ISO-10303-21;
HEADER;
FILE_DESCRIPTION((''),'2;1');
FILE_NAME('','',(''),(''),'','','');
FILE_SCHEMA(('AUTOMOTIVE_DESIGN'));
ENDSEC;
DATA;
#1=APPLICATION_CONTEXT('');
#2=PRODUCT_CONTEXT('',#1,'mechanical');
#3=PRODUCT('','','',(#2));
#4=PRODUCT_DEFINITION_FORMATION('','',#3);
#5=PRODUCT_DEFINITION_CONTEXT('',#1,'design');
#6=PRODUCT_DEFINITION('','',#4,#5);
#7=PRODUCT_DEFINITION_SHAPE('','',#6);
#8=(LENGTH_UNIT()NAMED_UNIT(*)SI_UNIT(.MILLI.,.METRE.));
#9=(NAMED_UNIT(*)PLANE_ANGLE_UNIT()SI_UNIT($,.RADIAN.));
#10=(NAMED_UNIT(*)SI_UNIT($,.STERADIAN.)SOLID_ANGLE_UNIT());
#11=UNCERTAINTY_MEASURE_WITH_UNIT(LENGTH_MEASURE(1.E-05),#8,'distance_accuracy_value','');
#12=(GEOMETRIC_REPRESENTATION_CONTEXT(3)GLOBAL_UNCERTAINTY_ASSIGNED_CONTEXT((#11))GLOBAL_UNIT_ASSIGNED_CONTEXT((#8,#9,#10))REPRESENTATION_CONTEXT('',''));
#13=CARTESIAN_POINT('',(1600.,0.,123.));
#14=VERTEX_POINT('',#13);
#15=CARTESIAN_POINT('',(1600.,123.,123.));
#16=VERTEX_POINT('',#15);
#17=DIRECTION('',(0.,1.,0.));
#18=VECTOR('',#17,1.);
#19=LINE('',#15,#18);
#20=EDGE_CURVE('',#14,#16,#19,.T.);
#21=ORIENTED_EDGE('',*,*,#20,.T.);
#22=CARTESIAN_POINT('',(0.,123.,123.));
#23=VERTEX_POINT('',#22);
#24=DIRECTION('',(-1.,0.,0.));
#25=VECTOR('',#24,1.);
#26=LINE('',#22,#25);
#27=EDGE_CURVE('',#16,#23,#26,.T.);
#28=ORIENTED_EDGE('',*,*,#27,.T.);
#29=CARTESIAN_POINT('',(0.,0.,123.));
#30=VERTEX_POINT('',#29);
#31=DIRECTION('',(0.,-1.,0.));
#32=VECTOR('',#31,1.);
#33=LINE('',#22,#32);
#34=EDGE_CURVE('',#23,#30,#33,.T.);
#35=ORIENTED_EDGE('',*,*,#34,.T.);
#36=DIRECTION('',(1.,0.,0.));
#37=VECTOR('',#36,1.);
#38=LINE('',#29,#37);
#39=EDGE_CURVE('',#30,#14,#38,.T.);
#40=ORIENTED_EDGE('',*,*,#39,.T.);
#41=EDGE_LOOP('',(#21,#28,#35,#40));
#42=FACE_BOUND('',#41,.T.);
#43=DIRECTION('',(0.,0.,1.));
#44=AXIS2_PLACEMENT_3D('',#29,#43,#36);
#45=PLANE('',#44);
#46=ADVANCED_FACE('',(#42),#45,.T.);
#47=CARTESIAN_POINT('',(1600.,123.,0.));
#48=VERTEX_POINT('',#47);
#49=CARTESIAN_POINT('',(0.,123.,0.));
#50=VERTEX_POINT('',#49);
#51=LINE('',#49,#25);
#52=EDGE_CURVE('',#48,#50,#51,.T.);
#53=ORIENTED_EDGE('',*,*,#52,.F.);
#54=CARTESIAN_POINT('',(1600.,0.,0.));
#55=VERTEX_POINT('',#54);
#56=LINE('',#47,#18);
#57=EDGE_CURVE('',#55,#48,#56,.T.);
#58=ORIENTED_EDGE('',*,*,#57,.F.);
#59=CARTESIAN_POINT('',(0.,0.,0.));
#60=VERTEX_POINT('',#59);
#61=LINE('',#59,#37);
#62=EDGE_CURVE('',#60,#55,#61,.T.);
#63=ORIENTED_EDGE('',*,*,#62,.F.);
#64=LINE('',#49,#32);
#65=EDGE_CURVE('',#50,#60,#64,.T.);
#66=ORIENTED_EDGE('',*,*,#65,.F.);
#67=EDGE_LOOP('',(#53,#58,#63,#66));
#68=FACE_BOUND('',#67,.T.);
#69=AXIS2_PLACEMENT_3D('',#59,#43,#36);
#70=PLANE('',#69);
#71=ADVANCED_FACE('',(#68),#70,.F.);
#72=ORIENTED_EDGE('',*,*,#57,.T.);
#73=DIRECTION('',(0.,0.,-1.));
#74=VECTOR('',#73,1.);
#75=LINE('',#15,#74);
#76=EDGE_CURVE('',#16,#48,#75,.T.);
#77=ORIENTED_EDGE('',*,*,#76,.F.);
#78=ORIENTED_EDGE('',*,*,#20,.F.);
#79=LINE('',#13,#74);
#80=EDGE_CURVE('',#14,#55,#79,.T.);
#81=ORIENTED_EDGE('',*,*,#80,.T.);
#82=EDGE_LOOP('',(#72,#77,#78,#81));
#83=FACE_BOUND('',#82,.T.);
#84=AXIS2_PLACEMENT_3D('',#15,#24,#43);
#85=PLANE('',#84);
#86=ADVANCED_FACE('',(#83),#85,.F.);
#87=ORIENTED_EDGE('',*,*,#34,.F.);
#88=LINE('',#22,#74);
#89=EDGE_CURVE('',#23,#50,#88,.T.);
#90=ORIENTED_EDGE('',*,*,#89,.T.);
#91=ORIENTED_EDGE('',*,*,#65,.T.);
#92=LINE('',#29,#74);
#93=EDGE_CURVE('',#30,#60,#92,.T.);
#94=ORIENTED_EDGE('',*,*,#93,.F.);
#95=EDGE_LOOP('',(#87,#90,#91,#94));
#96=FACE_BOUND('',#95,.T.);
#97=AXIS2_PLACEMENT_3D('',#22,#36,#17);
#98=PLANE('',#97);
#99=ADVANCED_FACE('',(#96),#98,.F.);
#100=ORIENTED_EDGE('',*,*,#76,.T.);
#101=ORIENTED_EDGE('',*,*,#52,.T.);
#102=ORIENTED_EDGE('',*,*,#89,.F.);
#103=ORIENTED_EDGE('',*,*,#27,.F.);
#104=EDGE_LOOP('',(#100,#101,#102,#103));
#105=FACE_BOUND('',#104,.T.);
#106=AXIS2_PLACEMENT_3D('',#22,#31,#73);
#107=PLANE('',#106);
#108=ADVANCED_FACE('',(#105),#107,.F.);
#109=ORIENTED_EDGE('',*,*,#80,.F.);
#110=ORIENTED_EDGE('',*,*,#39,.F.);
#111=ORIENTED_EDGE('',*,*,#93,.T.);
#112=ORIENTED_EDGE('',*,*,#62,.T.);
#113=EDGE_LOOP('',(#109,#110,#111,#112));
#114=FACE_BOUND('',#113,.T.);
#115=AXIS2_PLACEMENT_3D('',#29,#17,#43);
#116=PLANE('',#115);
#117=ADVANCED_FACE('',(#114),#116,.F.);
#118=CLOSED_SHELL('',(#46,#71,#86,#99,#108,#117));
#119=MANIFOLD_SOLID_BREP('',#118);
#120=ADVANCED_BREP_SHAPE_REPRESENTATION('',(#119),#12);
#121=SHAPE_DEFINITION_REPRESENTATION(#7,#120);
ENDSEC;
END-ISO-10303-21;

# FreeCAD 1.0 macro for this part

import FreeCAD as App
import Part
import Sketcher

V = App.Vector


def add_polygon(sketch, points):
    """Adds a closed chain of lines whose ends are joined by coincident constraints."""
    first, n = sketch.GeometryCount, len(points)
    for a, b in zip(points, points[1:] + points[:1]):
        sketch.addGeometry(Part.LineSegment(App.Vector(*a, 0), App.Vector(*b, 0)), False)
    for i in range(n):
        sketch.addConstraint(Sketcher.Constraint("Coincident", first + i, 2, first + (i + 1) % n, 1))

doc = App.newDocument("Part")
body = doc.addObject("PartDesign::Body", "Body")

sketch1 = body.newObject("Sketcher::SketchObject", "Sketch")
sketch1.AttachmentSupport = (doc.getObject("XY_Plane"), [""])
sketch1.MapMode = "FlatFace"
add_polygon(sketch1, [(0, 123), (0, 0), (1600, 0), (1600, 123)])
sketch1.addConstraint([
    Sketcher.Constraint("Vertical", 0),
    Sketcher.Constraint("Horizontal", 1),
    Sketcher.Constraint("Vertical", 2),
    Sketcher.Constraint("Horizontal", 3),
    Sketcher.Constraint("Coincident", 0, 2, -1, 1),
    Sketcher.Constraint("DistanceX", 1, 1, 1, 2, 1600.0),
    Sketcher.Constraint("DistanceY", 0, 2, 0, 1, 123.0),
])
pad1 = body.newObject("PartDesign::Pad", "Pad")
pad1.Profile = sketch1
pad1.Length = 123

doc.recompute()
